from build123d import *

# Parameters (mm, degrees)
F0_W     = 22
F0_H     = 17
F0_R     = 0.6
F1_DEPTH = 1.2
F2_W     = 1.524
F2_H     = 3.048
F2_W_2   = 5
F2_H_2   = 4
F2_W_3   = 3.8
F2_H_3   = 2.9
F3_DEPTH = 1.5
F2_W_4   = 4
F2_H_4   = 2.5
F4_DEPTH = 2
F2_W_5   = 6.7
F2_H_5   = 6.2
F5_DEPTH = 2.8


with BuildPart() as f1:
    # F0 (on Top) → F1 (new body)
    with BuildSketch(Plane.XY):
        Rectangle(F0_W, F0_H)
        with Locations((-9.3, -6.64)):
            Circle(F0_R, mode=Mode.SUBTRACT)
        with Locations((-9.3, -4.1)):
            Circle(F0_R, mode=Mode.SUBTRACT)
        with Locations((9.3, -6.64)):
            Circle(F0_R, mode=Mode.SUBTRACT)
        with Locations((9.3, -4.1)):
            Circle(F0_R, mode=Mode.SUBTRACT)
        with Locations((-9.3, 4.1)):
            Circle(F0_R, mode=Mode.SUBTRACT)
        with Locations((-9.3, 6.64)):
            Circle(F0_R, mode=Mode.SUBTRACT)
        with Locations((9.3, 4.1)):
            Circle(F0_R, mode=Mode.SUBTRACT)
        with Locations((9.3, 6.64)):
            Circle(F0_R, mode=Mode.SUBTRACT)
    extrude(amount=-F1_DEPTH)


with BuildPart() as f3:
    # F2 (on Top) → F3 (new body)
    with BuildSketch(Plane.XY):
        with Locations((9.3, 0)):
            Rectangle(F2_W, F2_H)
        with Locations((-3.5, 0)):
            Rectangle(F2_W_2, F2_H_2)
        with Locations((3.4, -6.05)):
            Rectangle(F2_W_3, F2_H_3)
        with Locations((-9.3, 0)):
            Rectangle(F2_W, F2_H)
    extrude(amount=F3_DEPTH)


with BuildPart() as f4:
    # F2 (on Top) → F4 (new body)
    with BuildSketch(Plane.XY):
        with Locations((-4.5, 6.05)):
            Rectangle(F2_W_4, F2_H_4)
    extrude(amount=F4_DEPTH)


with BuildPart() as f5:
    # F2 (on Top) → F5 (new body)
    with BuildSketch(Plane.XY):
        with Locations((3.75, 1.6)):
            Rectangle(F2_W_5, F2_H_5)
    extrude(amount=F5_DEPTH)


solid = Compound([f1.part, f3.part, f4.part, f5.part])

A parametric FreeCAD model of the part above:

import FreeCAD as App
import Part
import Sketcher

V = App.Vector
Q = App.Units.Quantity


def add_polygon(sketch, points):
    """Adds a closed chain of lines whose ends are joined by coincident constraints."""
    first, n = sketch.GeometryCount, len(points)
    for a, b in zip(points, points[1:] + points[:1]):
        sketch.addGeometry(Part.LineSegment(App.Vector(*a, 0), App.Vector(*b, 0)), False)
    for i in range(n):
        sketch.addConstraint(Sketcher.Constraint("Coincident", first + i, 2, first + (i + 1) % n, 1))

doc = App.newDocument("Part")
body = doc.addObject("PartDesign::Body", "Body")

sketch1 = body.newObject("Sketcher::SketchObject", "Sketch")
sketch1.AttachmentSupport = (doc.getObject("XY_Plane"), [""])
sketch1.MapMode = "FlatFace"
add_polygon(sketch1, [(-11, 8.5), (-11, -8.5), (11, -8.5), (11, 8.5)])
sketch1.addGeometry(Part.Circle(V(-9.3, -6.6, 0), V(0, 0, 1), 0.6), False)
sketch1.addGeometry(Part.Circle(V(-9.3, -4.1, 0), V(0, 0, 1), 0.6), False)
sketch1.addGeometry(Part.Circle(V(9.3, -6.6, 0), V(0, 0, 1), 0.6), False)
sketch1.addGeometry(Part.Circle(V(9.3, -4.1, 0), V(0, 0, 1), 0.6), False)
sketch1.addGeometry(Part.Circle(V(-9.3, 4.1, 0), V(0, 0, 1), 0.6), False)
sketch1.addGeometry(Part.Circle(V(-9.3, 6.6, 0), V(0, 0, 1), 0.6), False)
sketch1.addGeometry(Part.Circle(V(9.3, 4.1, 0), V(0, 0, 1), 0.6), False)
sketch1.addGeometry(Part.Circle(V(9.3, 6.6, 0), V(0, 0, 1), 0.6), False)
sketch1.addConstraint([
    Sketcher.Constraint("Vertical", 0),
    Sketcher.Constraint("Horizontal", 1),
    Sketcher.Constraint("Vertical", 2),
    Sketcher.Constraint("Horizontal", 3),
    Sketcher.Constraint("Equal", 4, 5),
    Sketcher.Constraint("Equal", 5, 6),
    Sketcher.Constraint("Equal", 6, 7),
    Sketcher.Constraint("Equal", 7, 8),
    Sketcher.Constraint("Equal", 8, 9),
    Sketcher.Constraint("Equal", 9, 10),
    Sketcher.Constraint("Equal", 10, 11),
    Sketcher.Constraint("Symmetric", 7, 3, 8, 3, -1, 1),
    Sketcher.Constraint("Symmetric", 6, 3, 9, 3, -1, 1),
    Sketcher.Constraint("Symmetric", 5, 3, 10, 3, -1, 1),
    Sketcher.Constraint("Symmetric", 4, 3, 11, 3, -1, 1),
    Sketcher.Constraint("Symmetric", 0, 2, 2, 2, -1, 1),
    Sketcher.Constraint("Symmetric", 4, 3, 6, 3, -2),
    Sketcher.Constraint("Symmetric", 5, 3, 7, 3, -2),
    Sketcher.Constraint("Vertical", 4, 3, 5, 3),
    Sketcher.Constraint("Diameter", 4, Q("1.2 mm")),
    Sketcher.Constraint("DistanceX", 1, 1, 1, 2, Q("22 mm")),
    Sketcher.Constraint("DistanceY", 0, 2, 0, 1, Q("17 mm")),
    Sketcher.Constraint("DistanceX", 4, 3, -1, 1, Q("9.3 mm")),
    Sketcher.Constraint("DistanceY", 5, 3, -1, 1, Q("4.1 mm")),
    Sketcher.Constraint("DistanceY", 4, 3, -1, 1, Q("6.64 mm")),
])
pad1 = body.newObject("PartDesign::Pad", "Pad")
pad1.Profile = sketch1
pad1.Length = 1.2
pad1.Reversed = True
body2 = doc.addObject("PartDesign::Body", "Body001")
body2.AllowCompound = True

sketch2 = body2.newObject("Sketcher::SketchObject", "Sketch001")
sketch2.AttachmentSupport = (doc.getObject("XY_Plane001"), [""])
sketch2.MapMode = "FlatFace"
add_polygon(sketch2, [(8.5, 1.5), (8.5, -1.5), (10.1, -1.5), (10.1, 1.5)])
add_polygon(sketch2, [(-6, 2), (-6, -2), (-1, -2), (-1, 2)])
add_polygon(sketch2, [(1.5, -4.6), (1.5, -7.5), (5.3, -7.5), (5.3, -4.6)])
add_polygon(sketch2, [(-10.1, 1.5), (-10.1, -1.5), (-8.5, -1.5), (-8.5, 1.5)])
sketch2.addConstraint([
    Sketcher.Constraint("Vertical", 0),
    Sketcher.Constraint("Horizontal", 1),
    Sketcher.Constraint("Vertical", 2),
    Sketcher.Constraint("Horizontal", 3),
    Sketcher.Constraint("Vertical", 4),
    Sketcher.Constraint("Horizontal", 5),
    Sketcher.Constraint("Vertical", 6),
    Sketcher.Constraint("Horizontal", 7),
    Sketcher.Constraint("Vertical", 8),
    Sketcher.Constraint("Horizontal", 9),
    Sketcher.Constraint("Vertical", 10),
    Sketcher.Constraint("Horizontal", 11),
    Sketcher.Constraint("Vertical", 12),
    Sketcher.Constraint("Horizontal", 13),
    Sketcher.Constraint("Vertical", 14),
    Sketcher.Constraint("Horizontal", 15),
    Sketcher.Constraint("Symmetric", 2, 2, 12, 2, -1, 1),
    Sketcher.Constraint("Symmetric", 0, 2, 14, 2, -1, 1),
    Sketcher.Constraint("Horizontal", 1, 2, 12, 2),
    Sketcher.Constraint("DistanceX", 5, 1, 5, 2, Q("5 mm")),
    Sketcher.Constraint("DistanceY", 4, 2, 4, 1, Q("4 mm")),
    Sketcher.Constraint("DistanceX", 9, 1, 9, 2, Q("3.8 mm")),
    Sketcher.Constraint("DistanceY", 8, 2, 8, 1, Q("2.9 mm")),
    Sketcher.Constraint("DistanceX", 4, 2, -1, 1, Q("6 mm")),
    Sketcher.Constraint("DistanceY", 4, 2, -1, 1, Q("2 mm")),
    Sketcher.Constraint("DistanceX", -1, 1, 8, 2, Q("1.5 mm")),
    Sketcher.Constraint("DistanceY", 8, 2, -1, 1, Q("7.5 mm")),
    Sketcher.Constraint("DistanceX", 1, 1, 1, 2, Q("1.524 mm")),
    Sketcher.Constraint("DistanceY", 0, 2, 0, 1, Q("3.048 mm")),
    Sketcher.Constraint("DistanceX", -1, 1, 0, 2, Q("8.538 mm")),
])
pad2 = body2.newObject("PartDesign::Pad", "Pad001")
pad2.Profile = sketch2
pad2.Length = 1.5
body3 = doc.addObject("PartDesign::Body", "Body002")

sketch3 = body3.newObject("Sketcher::SketchObject", "Sketch002")
sketch3.AttachmentSupport = (doc.getObject("XY_Plane002"), [""])
sketch3.MapMode = "FlatFace"
add_polygon(sketch3, [(-6.5, 7.3), (-6.5, 4.8), (-2.5, 4.8), (-2.5, 7.3)])
sketch3.addConstraint([
    Sketcher.Constraint("Vertical", 0),
    Sketcher.Constraint("Horizontal", 1),
    Sketcher.Constraint("Vertical", 2),
    Sketcher.Constraint("Horizontal", 3),
    Sketcher.Constraint("DistanceX", 1, 1, 1, 2, Q("4 mm")),
    Sketcher.Constraint("DistanceY", 0, 2, 0, 1, Q("2.5 mm")),
    Sketcher.Constraint("DistanceX", 0, 2, -1, 1, Q("6.5 mm")),
    Sketcher.Constraint("DistanceY", -1, 1, 0, 2, Q("4.8 mm")),
])
pad3 = body3.newObject("PartDesign::Pad", "Pad002")
pad3.Profile = sketch3
pad3.Length = 2
body4 = doc.addObject("PartDesign::Body", "Body003")

sketch4 = body4.newObject("Sketcher::SketchObject", "Sketch003")
sketch4.AttachmentSupport = (doc.getObject("XY_Plane003"), [""])
sketch4.MapMode = "FlatFace"
add_polygon(sketch4, [(0, 5), (0, -2), (7, -2), (7, 5)])
sketch4.addConstraint([
    Sketcher.Constraint("Vertical", 0),
    Sketcher.Constraint("Horizontal", 1),
    Sketcher.Constraint("Vertical", 2),
    Sketcher.Constraint("Horizontal", 3),
    Sketcher.Constraint("DistanceX", 1, 1, 1, 2, Q("6.7 mm")),
    Sketcher.Constraint("DistanceY", 0, 2, 0, 1, Q("6.2 mm")),
    Sketcher.Constraint("DistanceX", -1, 1, 0, 2, Q("0.4 mm")),
    Sketcher.Constraint("DistanceY", 0, 2, -1, 1, Q("1.5 mm")),
])
pad4 = body4.newObject("PartDesign::Pad", "Pad003")
pad4.Profile = sketch4
pad4.Length = 2.8

doc.recompute()
